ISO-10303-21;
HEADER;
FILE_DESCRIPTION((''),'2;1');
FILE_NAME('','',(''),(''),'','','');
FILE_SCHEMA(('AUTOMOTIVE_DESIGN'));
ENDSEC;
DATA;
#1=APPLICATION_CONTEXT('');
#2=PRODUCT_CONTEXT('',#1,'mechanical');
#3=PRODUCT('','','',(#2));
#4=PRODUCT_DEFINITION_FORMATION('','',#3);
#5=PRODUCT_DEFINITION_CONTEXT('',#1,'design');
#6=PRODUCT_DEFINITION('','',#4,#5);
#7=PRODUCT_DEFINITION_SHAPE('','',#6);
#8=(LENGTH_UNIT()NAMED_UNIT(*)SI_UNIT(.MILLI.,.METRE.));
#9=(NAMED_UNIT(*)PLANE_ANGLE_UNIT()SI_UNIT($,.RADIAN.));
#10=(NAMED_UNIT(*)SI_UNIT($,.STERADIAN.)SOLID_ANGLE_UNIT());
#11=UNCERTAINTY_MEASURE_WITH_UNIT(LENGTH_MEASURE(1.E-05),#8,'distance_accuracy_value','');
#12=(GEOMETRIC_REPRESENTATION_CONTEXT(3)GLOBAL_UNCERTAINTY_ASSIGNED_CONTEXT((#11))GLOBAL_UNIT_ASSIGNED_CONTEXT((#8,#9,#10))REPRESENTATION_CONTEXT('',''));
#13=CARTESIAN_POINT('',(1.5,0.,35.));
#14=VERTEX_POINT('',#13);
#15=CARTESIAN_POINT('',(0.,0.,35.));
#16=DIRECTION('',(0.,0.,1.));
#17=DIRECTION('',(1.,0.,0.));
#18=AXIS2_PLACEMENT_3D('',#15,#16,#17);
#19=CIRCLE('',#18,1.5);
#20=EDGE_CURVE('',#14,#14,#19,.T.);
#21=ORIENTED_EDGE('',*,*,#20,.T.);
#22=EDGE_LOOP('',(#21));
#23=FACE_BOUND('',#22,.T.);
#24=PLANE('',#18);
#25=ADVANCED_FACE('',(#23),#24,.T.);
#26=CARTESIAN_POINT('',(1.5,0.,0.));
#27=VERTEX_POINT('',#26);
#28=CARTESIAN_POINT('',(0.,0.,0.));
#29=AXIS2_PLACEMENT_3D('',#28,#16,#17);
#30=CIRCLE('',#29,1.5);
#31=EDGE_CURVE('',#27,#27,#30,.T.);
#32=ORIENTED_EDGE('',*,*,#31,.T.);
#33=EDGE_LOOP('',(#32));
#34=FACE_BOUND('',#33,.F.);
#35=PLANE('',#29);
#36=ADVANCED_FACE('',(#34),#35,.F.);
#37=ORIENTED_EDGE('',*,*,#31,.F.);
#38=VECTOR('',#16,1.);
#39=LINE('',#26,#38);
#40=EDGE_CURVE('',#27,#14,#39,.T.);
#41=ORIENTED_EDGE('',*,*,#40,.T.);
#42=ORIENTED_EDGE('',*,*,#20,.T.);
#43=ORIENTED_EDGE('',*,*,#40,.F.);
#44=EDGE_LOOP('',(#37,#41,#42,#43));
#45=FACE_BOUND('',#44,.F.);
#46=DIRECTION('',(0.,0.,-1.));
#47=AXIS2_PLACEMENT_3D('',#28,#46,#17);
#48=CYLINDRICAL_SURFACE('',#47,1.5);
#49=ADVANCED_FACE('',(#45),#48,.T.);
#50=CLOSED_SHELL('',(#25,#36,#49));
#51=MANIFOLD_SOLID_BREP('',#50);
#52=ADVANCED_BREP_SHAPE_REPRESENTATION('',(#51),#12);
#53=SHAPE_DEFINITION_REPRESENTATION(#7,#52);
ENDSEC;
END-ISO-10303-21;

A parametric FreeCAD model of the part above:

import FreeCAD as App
import Part
import Sketcher
from FreeCAD import Vector

doc = App.newDocument("Part")
params = doc.addObject("Spreadsheet::Sheet", "Params")
for row, (alias, value) in enumerate([
    ("sketch1_diameter", "3 mm"),
    ("pad1_length", "35 mm"),
], start=1):
    params.set(f"A{row}", alias)
    params.set(f"B{row}", "=" + value)
    params.setAlias(f"B{row}", alias)

body = doc.addObject("PartDesign::Body", "Body")

sketch1 = body.newObject("Sketcher::SketchObject", "Sketch")
sketch1.AttachmentSupport = (doc.getObject("XY_Plane"), [""])
sketch1.MapMode = "FlatFace"
sketch1.addGeometry(Part.Circle(Vector(0, 0, 0), Vector(0, 0, 1), 1.5), False)
sketch1.addConstraint(Sketcher.Constraint("Coincident", 0, 3, -1, 1))
sketch1.addConstraint(Sketcher.Constraint("Diameter", 0, 3.0))
sketch1.setExpression("Constraints[1]", "Params.sketch1_diameter")
pad1 = body.newObject("PartDesign::Pad", "Pad")
pad1.Profile = sketch1
pad1.setExpression("Length", "Params.pad1_length")

doc.recompute()
